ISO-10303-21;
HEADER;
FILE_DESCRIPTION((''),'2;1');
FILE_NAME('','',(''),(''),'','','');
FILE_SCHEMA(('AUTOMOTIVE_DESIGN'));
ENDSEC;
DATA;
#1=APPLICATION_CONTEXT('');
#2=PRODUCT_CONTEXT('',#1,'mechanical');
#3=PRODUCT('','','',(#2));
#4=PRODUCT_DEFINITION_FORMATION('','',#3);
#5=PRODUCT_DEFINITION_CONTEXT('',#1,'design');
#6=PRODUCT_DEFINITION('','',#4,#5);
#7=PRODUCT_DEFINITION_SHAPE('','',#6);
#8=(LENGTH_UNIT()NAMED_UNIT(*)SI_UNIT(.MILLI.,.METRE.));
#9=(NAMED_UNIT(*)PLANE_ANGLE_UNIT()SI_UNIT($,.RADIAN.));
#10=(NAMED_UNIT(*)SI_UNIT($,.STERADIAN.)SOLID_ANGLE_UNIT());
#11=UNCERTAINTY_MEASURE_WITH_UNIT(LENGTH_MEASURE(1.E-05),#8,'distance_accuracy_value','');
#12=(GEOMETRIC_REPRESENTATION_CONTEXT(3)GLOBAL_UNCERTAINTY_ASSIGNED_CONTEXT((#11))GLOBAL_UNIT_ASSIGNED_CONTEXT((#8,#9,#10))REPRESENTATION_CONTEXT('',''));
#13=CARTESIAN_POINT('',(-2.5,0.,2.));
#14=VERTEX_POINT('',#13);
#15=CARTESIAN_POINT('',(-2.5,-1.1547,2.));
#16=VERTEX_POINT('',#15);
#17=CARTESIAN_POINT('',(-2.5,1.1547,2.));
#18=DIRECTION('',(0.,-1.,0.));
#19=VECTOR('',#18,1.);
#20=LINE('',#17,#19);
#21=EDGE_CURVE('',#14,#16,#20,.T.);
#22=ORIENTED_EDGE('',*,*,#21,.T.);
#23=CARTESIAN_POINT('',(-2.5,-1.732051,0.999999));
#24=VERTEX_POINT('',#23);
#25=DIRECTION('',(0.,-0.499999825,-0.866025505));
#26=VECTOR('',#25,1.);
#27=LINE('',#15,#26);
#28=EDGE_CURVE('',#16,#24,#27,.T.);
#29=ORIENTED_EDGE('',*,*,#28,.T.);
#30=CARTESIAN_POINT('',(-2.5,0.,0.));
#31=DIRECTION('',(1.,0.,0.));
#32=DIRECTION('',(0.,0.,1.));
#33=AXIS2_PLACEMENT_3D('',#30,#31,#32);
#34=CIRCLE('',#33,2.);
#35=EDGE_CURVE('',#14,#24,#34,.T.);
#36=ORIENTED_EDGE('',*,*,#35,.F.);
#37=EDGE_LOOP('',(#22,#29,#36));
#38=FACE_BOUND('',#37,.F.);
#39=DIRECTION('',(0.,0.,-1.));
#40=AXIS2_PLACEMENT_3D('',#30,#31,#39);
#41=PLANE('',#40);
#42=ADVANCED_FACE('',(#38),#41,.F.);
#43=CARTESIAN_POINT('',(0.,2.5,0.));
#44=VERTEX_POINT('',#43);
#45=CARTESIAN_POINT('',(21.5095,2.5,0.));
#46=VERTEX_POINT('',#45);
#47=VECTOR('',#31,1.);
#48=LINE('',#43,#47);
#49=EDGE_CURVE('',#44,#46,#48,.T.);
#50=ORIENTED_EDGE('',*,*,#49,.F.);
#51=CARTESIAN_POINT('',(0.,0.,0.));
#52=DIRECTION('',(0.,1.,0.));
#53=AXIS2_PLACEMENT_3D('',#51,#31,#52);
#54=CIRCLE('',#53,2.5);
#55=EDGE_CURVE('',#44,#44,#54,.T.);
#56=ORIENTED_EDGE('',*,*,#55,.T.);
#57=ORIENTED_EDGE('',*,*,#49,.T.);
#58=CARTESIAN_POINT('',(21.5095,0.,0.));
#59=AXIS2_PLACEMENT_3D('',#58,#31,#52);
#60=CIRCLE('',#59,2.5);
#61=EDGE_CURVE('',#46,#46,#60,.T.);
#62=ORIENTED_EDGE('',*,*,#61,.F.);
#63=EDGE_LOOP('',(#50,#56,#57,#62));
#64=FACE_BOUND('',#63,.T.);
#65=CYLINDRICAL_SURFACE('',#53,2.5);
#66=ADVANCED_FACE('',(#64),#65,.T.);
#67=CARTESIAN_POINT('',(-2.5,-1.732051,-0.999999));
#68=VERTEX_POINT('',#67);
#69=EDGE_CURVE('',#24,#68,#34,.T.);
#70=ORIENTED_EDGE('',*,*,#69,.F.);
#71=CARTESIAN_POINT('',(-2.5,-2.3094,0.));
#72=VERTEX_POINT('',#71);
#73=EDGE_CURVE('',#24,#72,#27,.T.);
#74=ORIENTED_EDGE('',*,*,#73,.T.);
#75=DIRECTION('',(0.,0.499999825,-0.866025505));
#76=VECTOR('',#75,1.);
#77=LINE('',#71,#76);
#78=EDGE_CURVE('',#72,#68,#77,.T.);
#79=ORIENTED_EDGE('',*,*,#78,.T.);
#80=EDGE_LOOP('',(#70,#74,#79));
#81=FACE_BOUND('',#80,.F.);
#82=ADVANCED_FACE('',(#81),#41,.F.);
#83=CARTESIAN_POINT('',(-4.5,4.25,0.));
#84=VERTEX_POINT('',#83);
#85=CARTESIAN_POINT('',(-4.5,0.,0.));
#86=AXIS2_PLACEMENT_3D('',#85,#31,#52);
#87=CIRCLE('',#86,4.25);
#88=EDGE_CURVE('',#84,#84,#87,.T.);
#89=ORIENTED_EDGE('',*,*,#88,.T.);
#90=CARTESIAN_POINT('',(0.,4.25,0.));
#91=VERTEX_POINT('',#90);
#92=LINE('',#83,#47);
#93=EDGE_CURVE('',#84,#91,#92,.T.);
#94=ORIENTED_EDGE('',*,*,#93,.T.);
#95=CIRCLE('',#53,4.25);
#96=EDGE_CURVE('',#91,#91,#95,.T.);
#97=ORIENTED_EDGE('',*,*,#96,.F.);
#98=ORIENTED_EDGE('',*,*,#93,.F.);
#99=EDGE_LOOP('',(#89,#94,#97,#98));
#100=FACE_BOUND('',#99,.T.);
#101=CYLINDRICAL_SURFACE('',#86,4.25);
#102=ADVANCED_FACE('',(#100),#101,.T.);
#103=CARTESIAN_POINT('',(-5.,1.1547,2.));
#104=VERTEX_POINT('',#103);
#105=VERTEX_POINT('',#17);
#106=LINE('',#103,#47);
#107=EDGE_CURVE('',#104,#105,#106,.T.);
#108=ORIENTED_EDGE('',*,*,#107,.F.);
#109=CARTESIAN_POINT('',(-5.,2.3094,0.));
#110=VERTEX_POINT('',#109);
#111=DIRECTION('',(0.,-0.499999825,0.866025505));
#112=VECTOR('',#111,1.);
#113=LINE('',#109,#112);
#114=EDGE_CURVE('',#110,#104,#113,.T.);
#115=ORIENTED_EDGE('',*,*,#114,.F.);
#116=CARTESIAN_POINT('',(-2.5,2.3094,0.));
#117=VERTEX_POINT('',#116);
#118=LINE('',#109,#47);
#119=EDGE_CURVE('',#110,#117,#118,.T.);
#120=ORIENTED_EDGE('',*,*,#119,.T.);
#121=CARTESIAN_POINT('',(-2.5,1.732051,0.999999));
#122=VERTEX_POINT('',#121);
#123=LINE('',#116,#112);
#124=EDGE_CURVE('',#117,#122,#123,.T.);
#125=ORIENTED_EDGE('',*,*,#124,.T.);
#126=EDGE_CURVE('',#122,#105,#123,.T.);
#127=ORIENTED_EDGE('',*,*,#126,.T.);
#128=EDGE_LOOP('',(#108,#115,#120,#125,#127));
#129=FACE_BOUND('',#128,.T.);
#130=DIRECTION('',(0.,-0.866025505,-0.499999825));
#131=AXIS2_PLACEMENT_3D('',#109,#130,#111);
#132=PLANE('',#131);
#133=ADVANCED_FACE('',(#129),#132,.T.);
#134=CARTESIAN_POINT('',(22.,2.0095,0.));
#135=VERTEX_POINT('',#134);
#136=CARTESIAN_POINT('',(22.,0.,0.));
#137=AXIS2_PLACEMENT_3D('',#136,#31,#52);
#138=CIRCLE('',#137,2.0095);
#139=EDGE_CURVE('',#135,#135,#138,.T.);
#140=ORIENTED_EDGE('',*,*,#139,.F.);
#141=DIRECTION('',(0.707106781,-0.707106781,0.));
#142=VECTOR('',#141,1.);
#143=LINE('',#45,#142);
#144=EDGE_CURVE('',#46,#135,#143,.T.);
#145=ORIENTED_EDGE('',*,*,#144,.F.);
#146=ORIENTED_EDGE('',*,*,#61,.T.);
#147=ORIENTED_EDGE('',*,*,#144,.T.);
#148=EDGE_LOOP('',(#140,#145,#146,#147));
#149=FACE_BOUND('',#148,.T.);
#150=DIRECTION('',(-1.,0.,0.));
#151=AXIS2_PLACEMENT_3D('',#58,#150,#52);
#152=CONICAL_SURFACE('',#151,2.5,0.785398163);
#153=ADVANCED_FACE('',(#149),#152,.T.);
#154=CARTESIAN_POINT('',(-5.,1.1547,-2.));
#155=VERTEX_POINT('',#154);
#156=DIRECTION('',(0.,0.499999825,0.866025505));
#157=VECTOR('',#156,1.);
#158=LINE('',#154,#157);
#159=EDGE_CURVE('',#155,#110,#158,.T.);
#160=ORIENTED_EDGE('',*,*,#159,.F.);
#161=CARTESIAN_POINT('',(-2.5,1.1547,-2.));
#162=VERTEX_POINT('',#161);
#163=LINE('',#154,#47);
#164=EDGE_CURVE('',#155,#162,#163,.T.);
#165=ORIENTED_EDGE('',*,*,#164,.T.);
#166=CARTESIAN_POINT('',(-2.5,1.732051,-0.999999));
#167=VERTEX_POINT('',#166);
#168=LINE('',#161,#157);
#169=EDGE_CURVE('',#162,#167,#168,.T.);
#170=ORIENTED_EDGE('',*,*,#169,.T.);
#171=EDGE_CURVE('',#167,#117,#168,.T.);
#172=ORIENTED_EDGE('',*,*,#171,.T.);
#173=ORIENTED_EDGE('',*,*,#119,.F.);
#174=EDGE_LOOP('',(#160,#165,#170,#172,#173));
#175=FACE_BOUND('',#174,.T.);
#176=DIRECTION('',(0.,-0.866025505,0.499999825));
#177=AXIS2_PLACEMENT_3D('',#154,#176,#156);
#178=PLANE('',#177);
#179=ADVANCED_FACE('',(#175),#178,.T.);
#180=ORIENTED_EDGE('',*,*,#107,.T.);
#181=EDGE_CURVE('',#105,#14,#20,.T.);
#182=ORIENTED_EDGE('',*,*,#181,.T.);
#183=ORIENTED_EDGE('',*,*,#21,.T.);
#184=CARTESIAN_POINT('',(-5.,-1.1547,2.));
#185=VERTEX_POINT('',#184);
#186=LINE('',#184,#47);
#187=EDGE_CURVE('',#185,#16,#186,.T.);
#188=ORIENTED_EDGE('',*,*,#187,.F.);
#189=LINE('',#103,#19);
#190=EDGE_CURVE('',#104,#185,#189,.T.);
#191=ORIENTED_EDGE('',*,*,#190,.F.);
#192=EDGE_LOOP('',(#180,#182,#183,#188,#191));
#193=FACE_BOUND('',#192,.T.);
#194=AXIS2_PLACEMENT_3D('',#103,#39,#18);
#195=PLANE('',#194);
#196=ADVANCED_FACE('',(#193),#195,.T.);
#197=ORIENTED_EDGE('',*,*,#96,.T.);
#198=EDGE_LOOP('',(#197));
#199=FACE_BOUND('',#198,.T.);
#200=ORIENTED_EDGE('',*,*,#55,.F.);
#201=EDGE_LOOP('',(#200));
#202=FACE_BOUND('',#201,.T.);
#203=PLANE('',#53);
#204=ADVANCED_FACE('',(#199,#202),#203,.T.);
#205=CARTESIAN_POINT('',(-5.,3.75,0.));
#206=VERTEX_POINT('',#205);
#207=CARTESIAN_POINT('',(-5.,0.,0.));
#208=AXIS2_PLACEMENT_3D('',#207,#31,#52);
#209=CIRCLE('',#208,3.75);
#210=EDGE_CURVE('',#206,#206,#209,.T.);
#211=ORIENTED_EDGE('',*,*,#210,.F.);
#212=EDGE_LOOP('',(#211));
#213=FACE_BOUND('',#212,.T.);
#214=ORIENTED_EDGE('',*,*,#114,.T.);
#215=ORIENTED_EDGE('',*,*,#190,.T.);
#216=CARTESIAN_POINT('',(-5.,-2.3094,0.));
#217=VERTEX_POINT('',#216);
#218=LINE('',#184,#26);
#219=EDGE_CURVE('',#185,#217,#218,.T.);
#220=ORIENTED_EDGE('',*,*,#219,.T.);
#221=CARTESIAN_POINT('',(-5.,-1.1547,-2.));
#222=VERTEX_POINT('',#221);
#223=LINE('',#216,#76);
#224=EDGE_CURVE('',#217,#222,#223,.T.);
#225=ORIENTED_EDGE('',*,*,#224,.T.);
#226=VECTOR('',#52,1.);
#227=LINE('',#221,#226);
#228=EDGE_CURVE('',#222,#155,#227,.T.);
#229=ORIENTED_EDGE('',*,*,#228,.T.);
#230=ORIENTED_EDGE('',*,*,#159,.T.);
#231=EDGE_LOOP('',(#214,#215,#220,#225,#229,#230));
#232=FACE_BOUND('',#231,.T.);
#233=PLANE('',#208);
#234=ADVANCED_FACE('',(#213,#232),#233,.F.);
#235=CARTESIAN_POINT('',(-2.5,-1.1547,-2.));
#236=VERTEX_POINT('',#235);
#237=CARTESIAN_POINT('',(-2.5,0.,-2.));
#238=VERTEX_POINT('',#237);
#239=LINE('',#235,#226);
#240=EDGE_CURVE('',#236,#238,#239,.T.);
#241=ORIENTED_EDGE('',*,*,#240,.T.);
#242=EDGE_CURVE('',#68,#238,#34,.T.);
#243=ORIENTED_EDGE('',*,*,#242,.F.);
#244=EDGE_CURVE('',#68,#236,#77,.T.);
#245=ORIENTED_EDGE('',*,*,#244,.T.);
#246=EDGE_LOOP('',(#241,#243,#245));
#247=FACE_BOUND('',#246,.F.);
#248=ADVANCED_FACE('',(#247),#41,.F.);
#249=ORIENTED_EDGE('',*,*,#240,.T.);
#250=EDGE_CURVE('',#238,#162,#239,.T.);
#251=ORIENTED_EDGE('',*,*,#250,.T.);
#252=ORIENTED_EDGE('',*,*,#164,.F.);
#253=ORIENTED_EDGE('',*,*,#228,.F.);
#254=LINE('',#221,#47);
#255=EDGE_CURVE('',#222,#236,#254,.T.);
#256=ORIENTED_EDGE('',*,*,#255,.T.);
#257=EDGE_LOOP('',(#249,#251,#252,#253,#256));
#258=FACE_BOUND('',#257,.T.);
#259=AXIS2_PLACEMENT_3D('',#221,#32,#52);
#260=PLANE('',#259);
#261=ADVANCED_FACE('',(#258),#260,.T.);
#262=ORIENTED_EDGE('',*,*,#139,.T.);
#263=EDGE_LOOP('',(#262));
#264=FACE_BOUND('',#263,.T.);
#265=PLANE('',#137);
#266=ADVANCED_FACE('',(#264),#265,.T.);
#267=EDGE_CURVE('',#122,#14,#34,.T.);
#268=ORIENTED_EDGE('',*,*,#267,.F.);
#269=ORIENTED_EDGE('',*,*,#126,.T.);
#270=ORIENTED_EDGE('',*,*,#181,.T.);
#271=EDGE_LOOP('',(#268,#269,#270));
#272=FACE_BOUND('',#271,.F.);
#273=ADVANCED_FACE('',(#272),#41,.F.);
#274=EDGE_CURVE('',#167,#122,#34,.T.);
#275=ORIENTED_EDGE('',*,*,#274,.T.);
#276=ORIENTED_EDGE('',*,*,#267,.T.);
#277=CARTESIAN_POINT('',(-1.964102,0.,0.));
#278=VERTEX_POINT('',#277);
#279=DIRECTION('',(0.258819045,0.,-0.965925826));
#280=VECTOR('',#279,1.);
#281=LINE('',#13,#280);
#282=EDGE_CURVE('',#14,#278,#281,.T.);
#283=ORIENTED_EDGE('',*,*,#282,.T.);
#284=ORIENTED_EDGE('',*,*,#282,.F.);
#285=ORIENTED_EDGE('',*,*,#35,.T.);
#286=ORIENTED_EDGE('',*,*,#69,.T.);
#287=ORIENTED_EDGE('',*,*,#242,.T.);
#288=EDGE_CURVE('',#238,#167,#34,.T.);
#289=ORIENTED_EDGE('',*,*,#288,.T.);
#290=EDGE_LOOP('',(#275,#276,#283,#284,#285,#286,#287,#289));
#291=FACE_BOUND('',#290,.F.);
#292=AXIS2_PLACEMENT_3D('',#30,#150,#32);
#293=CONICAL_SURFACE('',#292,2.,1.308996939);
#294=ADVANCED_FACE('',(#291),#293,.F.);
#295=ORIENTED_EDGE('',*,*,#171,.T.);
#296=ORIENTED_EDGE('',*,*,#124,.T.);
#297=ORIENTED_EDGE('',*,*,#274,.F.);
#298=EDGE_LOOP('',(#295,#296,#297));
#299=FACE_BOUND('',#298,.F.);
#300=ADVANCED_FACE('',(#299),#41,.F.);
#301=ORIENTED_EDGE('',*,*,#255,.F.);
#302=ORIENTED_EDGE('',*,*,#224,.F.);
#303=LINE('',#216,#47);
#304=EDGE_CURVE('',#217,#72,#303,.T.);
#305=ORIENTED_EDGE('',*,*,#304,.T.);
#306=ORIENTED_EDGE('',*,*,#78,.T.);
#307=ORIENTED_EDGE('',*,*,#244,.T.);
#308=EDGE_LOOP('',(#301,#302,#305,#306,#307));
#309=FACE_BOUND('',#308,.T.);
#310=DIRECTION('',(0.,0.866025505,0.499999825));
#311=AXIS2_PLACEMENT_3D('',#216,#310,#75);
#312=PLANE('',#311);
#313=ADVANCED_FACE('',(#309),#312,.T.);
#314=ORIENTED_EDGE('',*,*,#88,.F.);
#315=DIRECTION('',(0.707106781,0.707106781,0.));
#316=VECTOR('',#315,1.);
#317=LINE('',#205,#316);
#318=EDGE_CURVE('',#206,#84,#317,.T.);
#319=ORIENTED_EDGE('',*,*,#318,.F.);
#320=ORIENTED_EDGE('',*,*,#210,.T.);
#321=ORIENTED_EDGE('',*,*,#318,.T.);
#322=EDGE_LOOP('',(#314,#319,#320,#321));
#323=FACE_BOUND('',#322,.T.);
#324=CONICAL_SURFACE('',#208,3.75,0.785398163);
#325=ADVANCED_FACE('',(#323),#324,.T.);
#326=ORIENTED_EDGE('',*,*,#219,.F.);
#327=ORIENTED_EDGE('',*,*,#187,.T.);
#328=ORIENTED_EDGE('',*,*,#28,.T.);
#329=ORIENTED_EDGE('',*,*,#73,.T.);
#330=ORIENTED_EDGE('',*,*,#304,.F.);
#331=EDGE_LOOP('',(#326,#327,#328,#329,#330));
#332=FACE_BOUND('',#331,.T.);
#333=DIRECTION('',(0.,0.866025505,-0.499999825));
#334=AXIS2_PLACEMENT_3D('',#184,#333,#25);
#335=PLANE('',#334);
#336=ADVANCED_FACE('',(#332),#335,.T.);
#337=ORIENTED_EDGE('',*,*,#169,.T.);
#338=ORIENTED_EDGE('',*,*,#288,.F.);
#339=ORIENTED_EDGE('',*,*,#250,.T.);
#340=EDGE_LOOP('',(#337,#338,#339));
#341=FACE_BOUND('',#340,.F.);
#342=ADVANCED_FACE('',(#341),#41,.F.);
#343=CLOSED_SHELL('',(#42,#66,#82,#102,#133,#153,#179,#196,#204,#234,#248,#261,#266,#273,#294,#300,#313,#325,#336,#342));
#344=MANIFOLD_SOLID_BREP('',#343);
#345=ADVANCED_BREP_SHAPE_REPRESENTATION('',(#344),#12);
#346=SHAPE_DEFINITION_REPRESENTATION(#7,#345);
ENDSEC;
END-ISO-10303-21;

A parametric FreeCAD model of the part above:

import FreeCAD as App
import Part
import Sketcher

V = App.Vector
Q = App.Units.Quantity

doc = App.newDocument("Part")
body = doc.addObject("PartDesign::Body", "Body")

sketch1 = doc.addObject("Sketcher::SketchObject", "Sketch")
body.addObject(sketch1)
sketch1.AttachmentSupport = (doc.XY_Plane, [""])
sketch1.MapMode = "FlatFace"
sketch1.addGeometry([
    Part.LineSegment(V(-5, 0, 0), V(22, 0, 0)),
    Part.LineSegment(V(22, 0, 0), V(22, 2.0095, 0)),
    Part.LineSegment(V(22, 2.0095, 0), V(21.5095, 2.5, 0)),
    Part.LineSegment(V(21.5095, 2.5, 0), V(0, 2.5, 0)),
    Part.LineSegment(V(0, 2.5, 0), V(0, 4.25, 0)),
    Part.LineSegment(V(0, 4.25, 0), V(-4.5, 4.25, 0)),
    Part.LineSegment(V(-4.5, 4.25, 0), V(-5, 3.75, 0)),
    Part.LineSegment(V(-5, 3.75, 0), V(-5, 0, 0)),
], False)
sketch1.addConstraint([
    Sketcher.Constraint("Coincident", 0, 2, 1, 1),
    Sketcher.Constraint("Coincident", 1, 2, 2, 1),
    Sketcher.Constraint("Coincident", 2, 2, 3, 1),
    Sketcher.Constraint("Coincident", 3, 2, 4, 1),
    Sketcher.Constraint("Coincident", 4, 2, 5, 1),
    Sketcher.Constraint("Coincident", 5, 2, 6, 1),
    Sketcher.Constraint("Coincident", 6, 2, 7, 1),
    Sketcher.Constraint("Coincident", 7, 2, 0, 1),
    Sketcher.Constraint("Horizontal", 0),
    Sketcher.Constraint("Vertical", 1),
    Sketcher.Constraint("Horizontal", 3),
    Sketcher.Constraint("Vertical", 4),
    Sketcher.Constraint("Horizontal", 5),
    Sketcher.Constraint("Vertical", 7),
    Sketcher.Constraint("PointOnObject", 0, 2, -1),
    Sketcher.Constraint("PointOnObject", 3, 2, -2),
    Sketcher.Constraint("Perpendicular", 2, 6),
    Sketcher.Constraint("DistanceX", 0, 1, 0, 2, 27.0),
    Sketcher.Constraint("Angle", 2, Q("135 deg")),
    Sketcher.Constraint("DistanceX", 5, 2, 5, 1, 4.5),
    Sketcher.Constraint("DistanceX", -1, 1, 0, 2, 22.0),
    Sketcher.Constraint("DistanceY", 4, 1, 4, 2, 1.75),
    Sketcher.Constraint("DistanceY", 7, 2, 7, 1, 3.75),
    Sketcher.Constraint("DistanceX", 3, 2, 3, 1, 21.5095),
])
revolution = doc.addObject("PartDesign::Revolution", "Revolution")
body.addObject(revolution)
revolution.Profile = sketch1
revolution.ReferenceAxis = (sketch1, ["H_Axis"])
revolution.Angle = 360

sketch2 = doc.addObject("Sketcher::SketchObject", "Sketch001")
body.addObject(sketch2)
sketch2.AttachmentSupport = (doc.YZ_Plane, [""])
sketch2.MapMode = "FlatFace"
sketch2.AttachmentOffset = App.Placement(V(0, 0, -5), App.Rotation())
sketch2.addGeometry(Part.Circle(V(0, 0, 0), V(0, 0, 1), 2), False)
sketch2.addConstraint([
    Sketcher.Constraint("Coincident", 0, 3, -1, 1),
    Sketcher.Constraint("Diameter", 0, 4.0),
])
doc.recompute()
hole = doc.addObject("PartDesign::Hole", "Hole")
body.addObject(hole)
hole.Profile = sketch2
hole.ThreadType = "None"
hole.Diameter = 4
hole.DepthType = "Dimension"
hole.Depth = 2.5
hole.DrillPoint = "Angled"
hole.DrillPointAngle = 150
hole.Reversed = True

sketch3 = doc.addObject("Sketcher::SketchObject", "Sketch002")
body.addObject(sketch3)
sketch3.AttachmentSupport = (doc.YZ_Plane, [""])
sketch3.MapMode = "FlatFace"
sketch3.AttachmentOffset = App.Placement(V(0, 0, -5), App.Rotation())
sketch3.addGeometry([
    Part.LineSegment(V(1.1547, 2, 0), V(-1.1547, 2, 0)),
    Part.LineSegment(V(-1.1547, 2, 0), V(-2.3094, 0, 0)),
    Part.LineSegment(V(-2.3094, 0, 0), V(-1.1547, -2, 0)),
    Part.LineSegment(V(-1.1547, -2, 0), V(1.1547, -2, 0)),
    Part.LineSegment(V(1.1547, -2, 0), V(2.3094, 0, 0)),
    Part.LineSegment(V(2.3094, 0, 0), V(1.1547, 2, 0)),
], False)
sketch3.addConstraint([
    Sketcher.Constraint("Coincident", 0, 2, 1, 1),
    Sketcher.Constraint("Coincident", 1, 2, 2, 1),
    Sketcher.Constraint("Coincident", 2, 2, 3, 1),
    Sketcher.Constraint("Coincident", 3, 2, 4, 1),
    Sketcher.Constraint("Coincident", 4, 2, 5, 1),
    Sketcher.Constraint("Coincident", 5, 2, 0, 1),
    Sketcher.Constraint("Horizontal", 0),
    Sketcher.Constraint("Horizontal", 3),
    Sketcher.Constraint("Symmetric", 0, 2, 3, 2, -1, 1),
    Sketcher.Constraint("Symmetric", 1, 2, 4, 2, -1, 1),
    Sketcher.Constraint("PointOnObject", 1, 2, -1),
    Sketcher.Constraint("Parallel", 2, 5),
    Sketcher.Constraint("Vertical", 0, 2, 2, 2),
    Sketcher.Constraint("Angle", 1, Q("-120 deg")),
    Sketcher.Constraint("DistanceY", -1, 1, 0, 2, 2.0),
    Sketcher.Constraint("DistanceX", 0, 2, 0, 1, 2.3094),
])
pocket1 = doc.addObject("PartDesign::Pocket", "Pocket")
body.addObject(pocket1)
pocket1.Profile = sketch3
pocket1.Length = 2.5
pocket1.Reversed = True

doc.recompute()
